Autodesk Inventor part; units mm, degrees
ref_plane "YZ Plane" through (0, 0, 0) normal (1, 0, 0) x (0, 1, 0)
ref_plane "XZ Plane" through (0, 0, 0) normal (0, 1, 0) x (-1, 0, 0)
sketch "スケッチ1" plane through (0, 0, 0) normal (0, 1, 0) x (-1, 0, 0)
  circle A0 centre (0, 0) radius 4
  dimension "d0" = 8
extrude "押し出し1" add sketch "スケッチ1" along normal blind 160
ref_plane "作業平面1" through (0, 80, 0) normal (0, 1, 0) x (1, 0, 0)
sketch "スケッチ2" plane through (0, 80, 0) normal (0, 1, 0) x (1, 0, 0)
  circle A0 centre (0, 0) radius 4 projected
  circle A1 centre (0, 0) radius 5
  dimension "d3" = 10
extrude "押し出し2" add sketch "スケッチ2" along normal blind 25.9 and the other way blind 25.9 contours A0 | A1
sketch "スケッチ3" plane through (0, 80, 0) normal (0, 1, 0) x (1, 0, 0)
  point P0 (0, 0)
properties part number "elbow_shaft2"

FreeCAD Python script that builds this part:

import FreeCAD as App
import Part
import Sketcher
Q = App.Units.Quantity

doc = App.newDocument("Part")
body = doc.addObject("PartDesign::Body", "Body")

# Sketch on XZ plane
sketch1 = doc.addObject("Sketcher::SketchObject", "Sketch")
body.addObject(sketch1)
sketch1.AttachmentSupport = (doc.XZ_Plane, [""])
sketch1.MapMode = "FlatFace"
sketch1.addGeometry(Part.Circle(App.Vector(0, 0, 0), App.Vector(0, 0, 1), 4), False)
sketch1.addConstraint([
    Sketcher.Constraint("Coincident", 0, 3, -1, 1),
    Sketcher.Constraint("Diameter", 0, Q("8 mm")),
])
pad1 = doc.addObject("PartDesign::Pad", "Pad")
body.addObject(pad1)
pad1.Profile = sketch1
pad1.Length = 160
pad1.Reversed = True

# Sketch on XZ plane
sketch2 = doc.addObject("Sketcher::SketchObject", "Sketch001")
body.addObject(sketch2)
sketch2.AttachmentSupport = (doc.XZ_Plane, [""])
sketch2.MapMode = "FlatFace"
sketch2.AttachmentOffset = App.Placement(App.Vector(0, 0, -80), App.Rotation())
sketch2.addGeometry(Part.Circle(App.Vector(0, 0, 0), App.Vector(0, 0, 1), 5), False)
sketch2.addConstraint([
    Sketcher.Constraint("Coincident", 0, 3, -1, 1),
    Sketcher.Constraint("Diameter", 0, Q("10 mm")),
])
pad2 = doc.addObject("PartDesign::Pad", "Pad001")
body.addObject(pad2)
pad2.Profile = sketch2
pad2.Type = "TwoLengths"
pad2.Length = 25.9
pad2.Length2 = 25.9
pad2.Reversed = True

doc.recompute()
